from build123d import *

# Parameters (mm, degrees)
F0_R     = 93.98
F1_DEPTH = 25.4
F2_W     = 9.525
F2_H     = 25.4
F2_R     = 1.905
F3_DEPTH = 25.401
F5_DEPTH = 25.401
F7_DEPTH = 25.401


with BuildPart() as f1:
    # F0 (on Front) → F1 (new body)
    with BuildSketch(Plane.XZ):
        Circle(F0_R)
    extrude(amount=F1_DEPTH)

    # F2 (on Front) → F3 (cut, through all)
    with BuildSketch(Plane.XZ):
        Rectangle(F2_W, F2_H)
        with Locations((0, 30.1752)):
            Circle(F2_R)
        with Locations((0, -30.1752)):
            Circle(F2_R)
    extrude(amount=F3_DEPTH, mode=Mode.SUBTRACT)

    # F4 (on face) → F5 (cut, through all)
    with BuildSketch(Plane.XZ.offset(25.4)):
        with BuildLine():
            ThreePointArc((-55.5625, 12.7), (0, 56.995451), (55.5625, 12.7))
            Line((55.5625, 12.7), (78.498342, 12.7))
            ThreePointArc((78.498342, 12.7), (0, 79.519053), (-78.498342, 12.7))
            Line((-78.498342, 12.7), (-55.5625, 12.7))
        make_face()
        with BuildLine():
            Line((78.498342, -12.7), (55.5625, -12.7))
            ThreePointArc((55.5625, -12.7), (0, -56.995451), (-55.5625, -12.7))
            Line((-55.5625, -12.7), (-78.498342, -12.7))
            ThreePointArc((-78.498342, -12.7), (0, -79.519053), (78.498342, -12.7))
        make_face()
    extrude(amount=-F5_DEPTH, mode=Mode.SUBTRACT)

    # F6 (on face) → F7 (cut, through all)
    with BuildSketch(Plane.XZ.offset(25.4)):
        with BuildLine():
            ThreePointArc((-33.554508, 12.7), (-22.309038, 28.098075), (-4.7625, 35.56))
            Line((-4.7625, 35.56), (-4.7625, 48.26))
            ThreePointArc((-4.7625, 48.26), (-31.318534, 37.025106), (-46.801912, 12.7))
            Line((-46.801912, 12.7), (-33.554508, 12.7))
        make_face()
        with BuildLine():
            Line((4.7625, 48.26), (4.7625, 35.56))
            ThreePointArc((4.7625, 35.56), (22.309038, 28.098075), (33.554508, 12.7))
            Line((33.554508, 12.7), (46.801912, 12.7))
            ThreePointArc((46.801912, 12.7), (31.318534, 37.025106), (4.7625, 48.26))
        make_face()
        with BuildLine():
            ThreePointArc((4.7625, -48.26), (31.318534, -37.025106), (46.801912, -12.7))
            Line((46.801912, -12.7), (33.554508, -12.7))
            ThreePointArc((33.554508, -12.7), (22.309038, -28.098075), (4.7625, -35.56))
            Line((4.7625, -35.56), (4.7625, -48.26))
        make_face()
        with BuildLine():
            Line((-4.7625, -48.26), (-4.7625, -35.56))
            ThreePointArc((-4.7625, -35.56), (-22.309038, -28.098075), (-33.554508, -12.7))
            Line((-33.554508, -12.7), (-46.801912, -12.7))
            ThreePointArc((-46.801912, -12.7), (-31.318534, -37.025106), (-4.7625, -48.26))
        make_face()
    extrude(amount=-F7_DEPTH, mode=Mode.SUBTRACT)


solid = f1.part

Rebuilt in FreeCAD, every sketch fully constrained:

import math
import FreeCAD as App
import Part
import Sketcher
from FreeCAD import Vector
Q = App.Units.Quantity

doc = App.newDocument("Part")
body = doc.addObject("PartDesign::Body", "Body")

# Sketch on XZ plane
sketch1 = body.newObject("Sketcher::SketchObject", "Sketch")
sketch1.AttachmentSupport = (doc.getObject("XZ_Plane"), [""])
sketch1.MapMode = "FlatFace"
sketch1.addGeometry(Part.Circle(Vector(0, 0, 0), Vector(0, 0, 1), 93.98), False)
sketch1.addConstraint([
    Sketcher.Constraint("Coincident", 0, 3, -1, 1),
    Sketcher.Constraint("Diameter", 0, Q("7.4 in")),
])
pad1 = body.newObject("PartDesign::Pad", "Pad")
pad1.Profile = sketch1
pad1.Length = Q("1 in")

# Sketch on XZ plane
sketch2 = body.newObject("Sketcher::SketchObject", "Sketch001")
sketch2.AttachmentSupport = (doc.getObject("XZ_Plane"), [""])
sketch2.MapMode = "FlatFace"
sketch2.addGeometry([
    Part.LineSegment(Vector(-4.7625, 12.7, 0), Vector(-4.7625, -12.7, 0)),  # 0
    Part.LineSegment(Vector(-4.7625, -12.7, 0), Vector(4.7625, -12.7, 0)),  # 1
    Part.LineSegment(Vector(4.7625, -12.7, 0), Vector(4.7625, 12.7, 0)),  # 2
    Part.LineSegment(Vector(4.7625, 12.7, 0), Vector(-4.7625, 12.7, 0)),  # 3
    Part.Circle(Vector(0, 30.1752, 0), Vector(0, 0, 1), 1.905),  # 4
    Part.Circle(Vector(0, -30.1752, 0), Vector(0, 0, 1), 1.905),  # 5
], False)
sketch2.addConstraint([
    Sketcher.Constraint("Coincident", 0, 2, 1, 1),
    Sketcher.Constraint("Coincident", 1, 2, 2, 1),
    Sketcher.Constraint("Coincident", 2, 2, 3, 1),
    Sketcher.Constraint("Coincident", 3, 2, 0, 1),
    Sketcher.Constraint("Vertical", 0),
    Sketcher.Constraint("Horizontal", 1),
    Sketcher.Constraint("Vertical", 2),
    Sketcher.Constraint("Horizontal", 3),
    Sketcher.Constraint("Equal", 4, 5),
    Sketcher.Constraint("Symmetric", 4, 3, 5, 3, -1, 1),
    Sketcher.Constraint("Symmetric", 0, 2, 2, 2, -1, 1),
    Sketcher.Constraint("PointOnObject", 4, 3, -2),
    Sketcher.Constraint("Diameter", 4, Q("0.15 in")),
    Sketcher.Constraint("DistanceY", 0, 2, 0, 1, Q("1 in")),
    Sketcher.Constraint("DistanceX", 1, 1, 1, 2, Q("0.375 in")),
    Sketcher.Constraint("DistanceY", -1, 1, 4, 3, Q("1.188 in")),
])
pocket1 = body.newObject("PartDesign::Pocket", "Pocket")
pocket1.Profile = sketch2
pocket1.Type = "ThroughAll"
pocket1.Reversed = True

# Sketch on XZ plane
sketch3 = body.newObject("Sketcher::SketchObject", "Sketch002")
sketch3.AttachmentSupport = (doc.getObject("XZ_Plane"), [""])
sketch3.MapMode = "FlatFace"
sketch3.AttachmentOffset = App.Placement(Vector(0, 0, 1 * 25.4), App.Rotation())
sketch3.addGeometry([
    Part.ArcOfCircle(Part.Circle(Vector(0, 0, 0), Vector(0, 0, 1), 56.995451), math.radians(12.875001), math.radians(167.124999)),  # 0
    Part.LineSegment(Vector(55.5625, 12.7, 0), Vector(78.498342, 12.7, 0)),  # 1
    Part.ArcOfCircle(Part.Circle(Vector(0, 0.000001, 0), Vector(0, 0, 1), 79.519052), math.radians(9.190072), math.radians(170.809928)),  # 2
    Part.LineSegment(Vector(-78.498342, 12.7, 0), Vector(-55.5625, 12.7, 0)),  # 3
    Part.LineSegment(Vector(78.498342, -12.7, 0), Vector(55.5625, -12.7, 0)),  # 4
    Part.ArcOfCircle(Part.Circle(Vector(0, 0, 0), Vector(0, 0, 1), 56.995451), math.radians(-167.124999), math.radians(-12.875001)),  # 5
    Part.LineSegment(Vector(-55.5625, -12.7, 0), Vector(-78.498342, -12.7, 0)),  # 6
    Part.ArcOfCircle(Part.Circle(Vector(0, -0.000001, 0), Vector(0, 0, 1), 79.519052), math.radians(-170.809928), math.radians(-9.190072)),  # 7
], False)
sketch3.addConstraint([
    Sketcher.Constraint("Coincident", 0, 1, 1, 1),
    Sketcher.Constraint("Coincident", 1, 2, 2, 1),
    Sketcher.Constraint("Coincident", 2, 2, 3, 1),
    Sketcher.Constraint("Coincident", 3, 2, 0, 2),
    Sketcher.Constraint("Coincident", 4, 2, 5, 2),
    Sketcher.Constraint("Coincident", 5, 1, 6, 1),
    Sketcher.Constraint("Coincident", 6, 2, 7, 1),
    Sketcher.Constraint("Coincident", 7, 2, 4, 1),
    Sketcher.Constraint("Horizontal", 1),
    Sketcher.Constraint("Horizontal", 3),
    Sketcher.Constraint("Horizontal", 4),
    Sketcher.Constraint("Horizontal", 6),
    Sketcher.Constraint("Coincident", 0, 3, -1, 1),
    Sketcher.Constraint("Coincident", 2, 3, -1, 1),
    Sketcher.Constraint("Coincident", 5, 3, -1, 1),
    Sketcher.Constraint("Coincident", 7, 3, -1, 1),
    Sketcher.Constraint("Equal", 0, 5),
    Sketcher.Constraint("Equal", 2, 7),
    Sketcher.Constraint("Horizontal", 1, 2, 2, 2),
    Sketcher.Constraint("Horizontal", 4, 2, 5, 1),
    Sketcher.Constraint("Vertical", 0, 1, 4, 2),
    Sketcher.Constraint("DistanceY", 4, 2, 0, 1, Q("1 in")),
    Sketcher.Constraint("DistanceX", -1, 1, 0, 1, Q("2.1875 in")),
    Sketcher.Constraint("Radius", 2, 79.519052),
])
pocket2 = body.newObject("PartDesign::Pocket", "Pocket001")
pocket2.Profile = sketch3
pocket2.Type = "ThroughAll"

# Sketch on XZ plane
sketch4 = body.newObject("Sketcher::SketchObject", "Sketch003")
sketch4.AttachmentSupport = (doc.getObject("XZ_Plane"), [""])
sketch4.MapMode = "FlatFace"
sketch4.AttachmentOffset = App.Placement(Vector(0, 0, 1 * 25.4), App.Rotation())
sketch4.addGeometry([
    Part.ArcOfCircle(Part.Circle(Vector(0.000001, -0.000001, 0), Vector(0, 0, 1), 35.877501), math.radians(97.628151), math.radians(159.268914)),  # 0
    Part.LineSegment(Vector(-4.7625, 35.56, 0), Vector(-4.7625, 48.26, 0)),  # 1
    Part.ArcOfCircle(Part.Circle(Vector(-0.000002, 0.000003, 0), Vector(0, 0, 1), 48.494419), math.radians(95.635939), math.radians(164.818015)),  # 2
    Part.LineSegment(Vector(-46.801912, 12.7, 0), Vector(-33.554508, 12.7, 0)),  # 3
    Part.LineSegment(Vector(4.7625, 48.26, 0), Vector(4.7625, 35.56, 0)),  # 4
    Part.ArcOfCircle(Part.Circle(Vector(-0.000001, -0.000001, 0), Vector(0, 0, 1), 35.877501), math.radians(20.731086), math.radians(82.371849)),  # 5
    Part.LineSegment(Vector(33.554508, 12.7, 0), Vector(46.801912, 12.7, 0)),  # 6
    Part.ArcOfCircle(Part.Circle(Vector(0.000002, 0.000003, 0), Vector(0, 0, 1), 48.494419), math.radians(15.181985), math.radians(84.364061)),  # 7
    Part.ArcOfCircle(Part.Circle(Vector(0.000002, -0.000003, 0), Vector(0, 0, 1), 48.494419), math.radians(-84.364061), math.radians(-15.181985)),  # 8
    Part.LineSegment(Vector(46.801912, -12.7, 0), Vector(33.554508, -12.7, 0)),  # 9
    Part.ArcOfCircle(Part.Circle(Vector(-0.000001, 0.000001, 0), Vector(0, 0, 1), 35.877501), math.radians(-82.371849), math.radians(-20.731086)),  # 10
    Part.LineSegment(Vector(4.7625, -35.56, 0), Vector(4.7625, -48.26, 0)),  # 11
    Part.LineSegment(Vector(-4.7625, -48.26, 0), Vector(-4.7625, -35.56, 0)),  # 12
    Part.ArcOfCircle(Part.Circle(Vector(0.000001, 0.000001, 0), Vector(0, 0, 1), 35.877501), math.radians(-159.268914), math.radians(-97.628151)),  # 13
    Part.LineSegment(Vector(-33.554508, -12.7, 0), Vector(-46.801912, -12.7, 0)),  # 14
    Part.ArcOfCircle(Part.Circle(Vector(-0.000002, -0.000003, 0), Vector(0, 0, 1), 48.494419), math.radians(-164.818015), math.radians(-95.635939)),  # 15
], False)
sketch4.addConstraint([
    Sketcher.Constraint("Coincident", 0, 1, 1, 1),
    Sketcher.Constraint("Coincident", 1, 2, 2, 1),
    Sketcher.Constraint("Coincident", 2, 2, 3, 1),
    Sketcher.Constraint("Coincident", 3, 2, 0, 2),
    Sketcher.Constraint("Coincident", 4, 2, 5, 2),
    Sketcher.Constraint("Coincident", 5, 1, 6, 1),
    Sketcher.Constraint("Coincident", 6, 2, 7, 1),
    Sketcher.Constraint("Coincident", 7, 2, 4, 1),
    Sketcher.Constraint("Coincident", 8, 2, 9, 1),
    Sketcher.Constraint("Coincident", 9, 2, 10, 2),
    Sketcher.Constraint("Coincident", 10, 1, 11, 1),
    Sketcher.Constraint("Coincident", 11, 2, 8, 1),
    Sketcher.Constraint("Coincident", 12, 2, 13, 2),
    Sketcher.Constraint("Coincident", 13, 1, 14, 1),
    Sketcher.Constraint("Coincident", 14, 2, 15, 1),
    Sketcher.Constraint("Coincident", 15, 2, 12, 1),
    Sketcher.Constraint("Vertical", 1),
    Sketcher.Constraint("Horizontal", 3),
    Sketcher.Constraint("Vertical", 4),
    Sketcher.Constraint("Horizontal", 6),
    Sketcher.Constraint("Horizontal", 9),
    Sketcher.Constraint("Vertical", 11),
    Sketcher.Constraint("Vertical", 12),
    Sketcher.Constraint("Horizontal", 14),
    Sketcher.Constraint("Coincident", 0, 3, -1, 1),
    Sketcher.Constraint("Coincident", 2, 3, -1, 1),
    Sketcher.Constraint("Coincident", 5, 3, -1, 1),
    Sketcher.Constraint("Coincident", 7, 3, -1, 1),
    Sketcher.Constraint("Coincident", 8, 3, -1, 1),
    Sketcher.Constraint("Coincident", 10, 3, -1, 1),
    Sketcher.Constraint("Coincident", 13, 3, -1, 1),
    Sketcher.Constraint("Coincident", 15, 3, -1, 1),
    Sketcher.Constraint("Equal", 0, 5),
    Sketcher.Constraint("Equal", 2, 7),
    Sketcher.Constraint("Equal", 7, 8),
    Sketcher.Constraint("Equal", 5, 10),
    Sketcher.Constraint("Equal", 10, 13),
    Sketcher.Constraint("Equal", 8, 15),
    Sketcher.Constraint("Horizontal", 0, 1, 4, 2),
    Sketcher.Constraint("Horizontal", 3, 2, 5, 1),
    Sketcher.Constraint("Horizontal", 10, 1, 12, 2),
    Sketcher.Constraint("Horizontal", 9, 2, 13, 1),
    Sketcher.Constraint("Vertical", 6, 2, 8, 2),
    Sketcher.Constraint("Vertical", 7, 2, 10, 1),
    Sketcher.Constraint("DistanceY", 1, 1, 1, 2, Q("0.5 in")),
    Sketcher.Constraint("DistanceY", 8, 2, 6, 2, Q("1 in")),
    Sketcher.Constraint("DistanceY", -1, 1, 0, 1, Q("1.4 in")),
    Sketcher.Constraint("Radius", 0, Q("1.4125 in")),
])
pocket3 = body.newObject("PartDesign::Pocket", "Pocket002")
pocket3.Profile = sketch4
pocket3.Type = "ThroughAll"

doc.recompute()
